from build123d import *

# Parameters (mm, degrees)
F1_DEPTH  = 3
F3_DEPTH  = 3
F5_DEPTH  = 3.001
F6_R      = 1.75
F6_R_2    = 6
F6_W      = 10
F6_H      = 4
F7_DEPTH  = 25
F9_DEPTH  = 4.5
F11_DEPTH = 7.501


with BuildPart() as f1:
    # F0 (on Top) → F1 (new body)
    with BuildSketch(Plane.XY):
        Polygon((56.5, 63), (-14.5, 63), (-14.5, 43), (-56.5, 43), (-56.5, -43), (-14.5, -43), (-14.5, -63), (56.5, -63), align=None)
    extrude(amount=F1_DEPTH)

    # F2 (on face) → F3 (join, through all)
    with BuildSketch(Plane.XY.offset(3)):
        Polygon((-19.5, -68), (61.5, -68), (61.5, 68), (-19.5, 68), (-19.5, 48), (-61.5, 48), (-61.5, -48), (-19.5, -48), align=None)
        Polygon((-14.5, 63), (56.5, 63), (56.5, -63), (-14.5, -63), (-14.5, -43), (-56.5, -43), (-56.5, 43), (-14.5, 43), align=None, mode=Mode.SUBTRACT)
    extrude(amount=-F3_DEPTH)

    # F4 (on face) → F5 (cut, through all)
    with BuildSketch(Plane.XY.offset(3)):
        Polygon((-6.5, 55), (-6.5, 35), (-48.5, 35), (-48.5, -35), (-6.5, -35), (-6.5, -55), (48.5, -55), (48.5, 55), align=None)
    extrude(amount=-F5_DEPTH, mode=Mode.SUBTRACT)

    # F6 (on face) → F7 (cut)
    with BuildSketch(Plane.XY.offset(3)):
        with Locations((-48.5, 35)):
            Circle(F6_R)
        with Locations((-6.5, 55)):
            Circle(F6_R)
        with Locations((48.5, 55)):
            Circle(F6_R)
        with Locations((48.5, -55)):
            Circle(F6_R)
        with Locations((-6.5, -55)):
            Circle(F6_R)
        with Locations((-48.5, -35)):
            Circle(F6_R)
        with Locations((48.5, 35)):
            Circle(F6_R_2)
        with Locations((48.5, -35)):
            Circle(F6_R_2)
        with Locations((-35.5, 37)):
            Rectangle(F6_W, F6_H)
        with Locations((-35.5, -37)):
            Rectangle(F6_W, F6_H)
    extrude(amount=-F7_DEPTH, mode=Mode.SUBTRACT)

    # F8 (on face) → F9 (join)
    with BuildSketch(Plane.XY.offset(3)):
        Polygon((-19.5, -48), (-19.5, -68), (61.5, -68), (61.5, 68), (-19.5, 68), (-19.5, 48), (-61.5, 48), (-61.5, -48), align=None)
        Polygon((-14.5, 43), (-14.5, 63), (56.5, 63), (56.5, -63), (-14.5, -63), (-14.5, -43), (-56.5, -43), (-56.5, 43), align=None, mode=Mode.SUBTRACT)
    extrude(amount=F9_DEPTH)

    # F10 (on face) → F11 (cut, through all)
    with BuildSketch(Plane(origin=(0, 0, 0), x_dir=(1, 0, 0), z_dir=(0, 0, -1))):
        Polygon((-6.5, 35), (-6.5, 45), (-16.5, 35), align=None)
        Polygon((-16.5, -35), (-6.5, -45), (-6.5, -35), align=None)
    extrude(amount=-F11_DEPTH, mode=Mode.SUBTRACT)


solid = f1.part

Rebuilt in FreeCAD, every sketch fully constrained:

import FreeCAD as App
import Part
import Sketcher
from FreeCAD import Vector
Q = App.Units.Quantity

doc = App.newDocument("Part")
params = doc.addObject("Spreadsheet::Sheet", "Params")
for row, (alias, value) in enumerate([
    ("sketch1_width", "71 mm"),
    ("sketch1_width2", "42 mm"),
    ("sketch1_height", "20 mm"),
    ("sketch1_height2", "86 mm"),
    ("pad1_length", "3 mm"),
    ("sketch2_width", "81 mm"),
    ("sketch2_width2", "42 mm"),
    ("sketch2_width3", "71 mm"),
    ("sketch2_height", "136 mm"),
    ("sketch2_height2", "20 mm"),
    ("sketch3_width", "42 mm"),
    ("sketch3_width2", "55 mm"),
    ("sketch3_height", "20 mm"),
    ("sketch3_height2", "70 mm"),
    ("sketch4_diameter", "12 mm"),
    ("sketch4_diameter2", "3.5 mm"),
    ("sketch4_width", "10 mm"),
    ("sketch4_height", "4 mm"),
    ("pocket2_length", "25 mm"),
    ("sketch5_width", "81 mm"),
    ("sketch5_width2", "42 mm"),
    ("sketch5_width3", "71 mm"),
    ("sketch5_height", "20 mm"),
    ("sketch5_height2", "136 mm"),
    ("pad3_length", "4.5 mm"),
    ("sketch6_width", "10 mm"),
], start=1):
    params.set(f"A{row}", alias)
    params.set(f"B{row}", "=" + value)
    params.setAlias(f"B{row}", alias)

body = doc.addObject("PartDesign::Body", "Body")

sketch1 = body.newObject("Sketcher::SketchObject", "Sketch")
sketch1.AttachmentSupport = (doc.getObject("XY_Plane"), [""])
sketch1.MapMode = "FlatFace"
sketch1.addGeometry([
    Part.LineSegment(Vector(56, 63, 0), Vector(-14, 63, 0)),
    Part.LineSegment(Vector(-14, 63, 0), Vector(-14, 43, 0)),
    Part.LineSegment(Vector(-14, 43, 0), Vector(-56, 43, 0)),
    Part.LineSegment(Vector(-56, 43, 0), Vector(-56, -43, 0)),
    Part.LineSegment(Vector(-56, -43, 0), Vector(-14, -43, 0)),
    Part.LineSegment(Vector(-14, -43, 0), Vector(-14, -63, 0)),
    Part.LineSegment(Vector(-14, -63, 0), Vector(56, -63, 0)),
    Part.LineSegment(Vector(56, -63, 0), Vector(56, 63, 0)),
], False)
sketch1.addConstraint([
    Sketcher.Constraint("Coincident", 0, 2, 1, 1),
    Sketcher.Constraint("Coincident", 1, 2, 2, 1),
    Sketcher.Constraint("Coincident", 2, 2, 3, 1),
    Sketcher.Constraint("Coincident", 3, 2, 4, 1),
    Sketcher.Constraint("Coincident", 4, 2, 5, 1),
    Sketcher.Constraint("Coincident", 5, 2, 6, 1),
    Sketcher.Constraint("Coincident", 6, 2, 7, 1),
    Sketcher.Constraint("Coincident", 7, 2, 0, 1),
    Sketcher.Constraint("Horizontal", 0),
    Sketcher.Constraint("Vertical", 1),
    Sketcher.Constraint("Horizontal", 2),
    Sketcher.Constraint("Vertical", 3),
    Sketcher.Constraint("Horizontal", 4),
    Sketcher.Constraint("Vertical", 5),
    Sketcher.Constraint("Horizontal", 6),
    Sketcher.Constraint("Vertical", 7),
    Sketcher.Constraint("Symmetric", 1, 2, 4, 2, -1),
    Sketcher.Constraint("Equal", 1, 5),
    Sketcher.Constraint("DistanceX", 0, 2, 0, 1, Q("71 mm")),
    Sketcher.Constraint("DistanceX", 2, 2, 2, 1, Q("42 mm")),
    Sketcher.Constraint("DistanceY", 1, 2, 1, 1, Q("20 mm")),
    Sketcher.Constraint("DistanceY", 3, 2, 3, 1, Q("86 mm")),
    Sketcher.Constraint("DistanceX", 0, 2, -1, 1, Q("14.5 mm")),
])
sketch1.setExpression("Constraints[18]", "Params.sketch1_width")
sketch1.setExpression("Constraints[19]", "Params.sketch1_width2")
sketch1.setExpression("Constraints[20]", "Params.sketch1_height")
sketch1.setExpression("Constraints[21]", "Params.sketch1_height2")
pad1 = body.newObject("PartDesign::Pad", "Pad")
pad1.Profile = sketch1
pad1.setExpression("Length", "Params.pad1_length")

sketch2 = body.newObject("Sketcher::SketchObject", "Sketch001")
sketch2.AttachmentSupport = (doc.getObject("XY_Plane"), [""])
sketch2.MapMode = "FlatFace"
sketch2.AttachmentOffset = App.Placement(Vector(0, 0, 3), App.Rotation())
sketch2.addGeometry([
    Part.LineSegment(Vector(-20, -68, 0), Vector(62, -68, 0)),
    Part.LineSegment(Vector(62, -68, 0), Vector(62, 68, 0)),
    Part.LineSegment(Vector(62, 68, 0), Vector(-20, 68, 0)),
    Part.LineSegment(Vector(-20, 68, 0), Vector(-20, 48, 0)),
    Part.LineSegment(Vector(-20, 48, 0), Vector(-62, 48, 0)),
    Part.LineSegment(Vector(-62, 48, 0), Vector(-62, -48, 0)),
    Part.LineSegment(Vector(-62, -48, 0), Vector(-20, -48, 0)),
    Part.LineSegment(Vector(-20, -48, 0), Vector(-20, -68, 0)),
    Part.LineSegment(Vector(-14, 43, 0), Vector(-14, 63, 0)),
    Part.LineSegment(Vector(-14, 63, 0), Vector(56, 63, 0)),
    Part.LineSegment(Vector(56, 63, 0), Vector(56, -63, 0)),
    Part.LineSegment(Vector(56, -63, 0), Vector(-14, -63, 0)),
    Part.LineSegment(Vector(-14, -63, 0), Vector(-14, -43, 0)),
    Part.LineSegment(Vector(-14, -43, 0), Vector(-56, -43, 0)),
    Part.LineSegment(Vector(-56, -43, 0), Vector(-56, 43, 0)),
    Part.LineSegment(Vector(-56, 43, 0), Vector(-14, 43, 0)),
], False)
sketch2.addConstraint([
    Sketcher.Constraint("Coincident", 0, 2, 1, 1),
    Sketcher.Constraint("Coincident", 1, 2, 2, 1),
    Sketcher.Constraint("Coincident", 2, 2, 3, 1),
    Sketcher.Constraint("Coincident", 3, 2, 4, 1),
    Sketcher.Constraint("Coincident", 4, 2, 5, 1),
    Sketcher.Constraint("Coincident", 5, 2, 6, 1),
    Sketcher.Constraint("Coincident", 6, 2, 7, 1),
    Sketcher.Constraint("Coincident", 7, 2, 0, 1),
    Sketcher.Constraint("Coincident", 8, 2, 9, 1),
    Sketcher.Constraint("Coincident", 9, 2, 10, 1),
    Sketcher.Constraint("Coincident", 10, 2, 11, 1),
    Sketcher.Constraint("Coincident", 11, 2, 12, 1),
    Sketcher.Constraint("Coincident", 12, 2, 13, 1),
    Sketcher.Constraint("Coincident", 13, 2, 14, 1),
    Sketcher.Constraint("Coincident", 14, 2, 15, 1),
    Sketcher.Constraint("Coincident", 15, 2, 8, 1),
    Sketcher.Constraint("Horizontal", 0),
    Sketcher.Constraint("Vertical", 1),
    Sketcher.Constraint("Horizontal", 2),
    Sketcher.Constraint("Vertical", 3),
    Sketcher.Constraint("Horizontal", 4),
    Sketcher.Constraint("Vertical", 5),
    Sketcher.Constraint("Horizontal", 6),
    Sketcher.Constraint("Vertical", 7),
    Sketcher.Constraint("Vertical", 8),
    Sketcher.Constraint("Horizontal", 9),
    Sketcher.Constraint("Vertical", 10),
    Sketcher.Constraint("Horizontal", 11),
    Sketcher.Constraint("Vertical", 12),
    Sketcher.Constraint("Horizontal", 13),
    Sketcher.Constraint("Vertical", 14),
    Sketcher.Constraint("Horizontal", 15),
    Sketcher.Constraint("Symmetric", 3, 2, 6, 2, -1),
    Sketcher.Constraint("Symmetric", 8, 2, 11, 2, -1),
    Sketcher.Constraint("Equal", 6, 13),
    Sketcher.Constraint("Equal", 3, 7),
    Sketcher.Constraint("Equal", 7, 8),
    Sketcher.Constraint("Equal", 8, 12),
    Sketcher.Constraint("DistanceX", 0, 1, 0, 2, Q("81 mm")),
    Sketcher.Constraint("DistanceX", 4, 2, 4, 1, Q("42 mm")),
    Sketcher.Constraint("DistanceX", 9, 1, 9, 2, Q("71 mm")),
    Sketcher.Constraint("DistanceY", 1, 1, 1, 2, Q("136 mm")),
    Sketcher.Constraint("DistanceY", 3, 2, 3, 1, Q("20 mm")),
    Sketcher.Constraint("DistanceY", 10, 2, 10, 1, Q("126 mm")),
    Sketcher.Constraint("DistanceX", 2, 2, 8, 2, Q("5 mm")),
    Sketcher.Constraint("DistanceX", -1, 1, 0, 2, Q("61.5 mm")),
])
sketch2.setExpression("Constraints[38]", "Params.sketch2_width")
sketch2.setExpression("Constraints[39]", "Params.sketch2_width2")
sketch2.setExpression("Constraints[40]", "Params.sketch2_width3")
sketch2.setExpression("Constraints[41]", "Params.sketch2_height")
sketch2.setExpression("Constraints[42]", "Params.sketch2_height2")
pad2 = body.newObject("PartDesign::Pad", "Pad001")
pad2.Profile = sketch2
pad2.Type = "UpToLast"
pad2.Reversed = True

sketch3 = body.newObject("Sketcher::SketchObject", "Sketch002")
sketch3.AttachmentSupport = (doc.getObject("XY_Plane"), [""])
sketch3.MapMode = "FlatFace"
sketch3.AttachmentOffset = App.Placement(Vector(0, 0, 3), App.Rotation())
sketch3.addGeometry([
    Part.LineSegment(Vector(-6, 55, 0), Vector(-6, 35, 0)),
    Part.LineSegment(Vector(-6, 35, 0), Vector(-48, 35, 0)),
    Part.LineSegment(Vector(-48, 35, 0), Vector(-48, -35, 0)),
    Part.LineSegment(Vector(-48, -35, 0), Vector(-6, -35, 0)),
    Part.LineSegment(Vector(-6, -35, 0), Vector(-6, -55, 0)),
    Part.LineSegment(Vector(-6, -55, 0), Vector(48, -55, 0)),
    Part.LineSegment(Vector(48, -55, 0), Vector(48, 55, 0)),
    Part.LineSegment(Vector(48, 55, 0), Vector(-6, 55, 0)),
], False)
sketch3.addConstraint([
    Sketcher.Constraint("Coincident", 0, 2, 1, 1),
    Sketcher.Constraint("Coincident", 1, 2, 2, 1),
    Sketcher.Constraint("Coincident", 2, 2, 3, 1),
    Sketcher.Constraint("Coincident", 3, 2, 4, 1),
    Sketcher.Constraint("Coincident", 4, 2, 5, 1),
    Sketcher.Constraint("Coincident", 5, 2, 6, 1),
    Sketcher.Constraint("Coincident", 6, 2, 7, 1),
    Sketcher.Constraint("Coincident", 7, 2, 0, 1),
    Sketcher.Constraint("Vertical", 0),
    Sketcher.Constraint("Horizontal", 1),
    Sketcher.Constraint("Vertical", 2),
    Sketcher.Constraint("Horizontal", 3),
    Sketcher.Constraint("Vertical", 4),
    Sketcher.Constraint("Horizontal", 5),
    Sketcher.Constraint("Vertical", 6),
    Sketcher.Constraint("Horizontal", 7),
    Sketcher.Constraint("Symmetric", 0, 2, 3, 2, -1),
    Sketcher.Constraint("Equal", 0, 4),
    Sketcher.Constraint("DistanceX", 1, 2, 1, 1, Q("42 mm")),
    Sketcher.Constraint("DistanceX", 5, 1, 5, 2, Q("55 mm")),
    Sketcher.Constraint("DistanceY", 0, 2, 0, 1, Q("20 mm")),
    Sketcher.Constraint("DistanceY", 2, 2, 2, 1, Q("70 mm")),
    Sketcher.Constraint("DistanceX", 0, 2, -1, 1, Q("6.5 mm")),
])
sketch3.setExpression("Constraints[18]", "Params.sketch3_width")
sketch3.setExpression("Constraints[19]", "Params.sketch3_width2")
sketch3.setExpression("Constraints[20]", "Params.sketch3_height")
sketch3.setExpression("Constraints[21]", "Params.sketch3_height2")
pocket1 = body.newObject("PartDesign::Pocket", "Pocket")
pocket1.Profile = sketch3
pocket1.Type = "ThroughAll"

sketch4 = body.newObject("Sketcher::SketchObject", "Sketch003")
sketch4.AttachmentSupport = (doc.getObject("XY_Plane"), [""])
sketch4.MapMode = "FlatFace"
sketch4.AttachmentOffset = App.Placement(Vector(0, 0, 3), App.Rotation())
sketch4.addGeometry([
    Part.Circle(Vector(-48.5, 35, 0), Vector(0, 0, 1), 1.8),
    Part.Circle(Vector(-6.5, 55, 0), Vector(0, 0, 1), 1.8),
    Part.Circle(Vector(48.5, 55, 0), Vector(0, 0, 1), 1.8),
    Part.Circle(Vector(48.5, -55, 0), Vector(0, 0, 1), 1.8),
    Part.Circle(Vector(-6.5, -55, 0), Vector(0, 0, 1), 1.8),
    Part.Circle(Vector(-48.5, -35, 0), Vector(0, 0, 1), 1.8),
    Part.Circle(Vector(48.5, 35, 0), Vector(0, 0, 1), 6),
    Part.Circle(Vector(48.5, -35, 0), Vector(0, 0, 1), 6),
    Part.LineSegment(Vector(-40.5, 39, 0), Vector(-40.5, 35, 0)),
    Part.LineSegment(Vector(-40.5, 35, 0), Vector(-30.5, 35, 0)),
    Part.LineSegment(Vector(-30.5, 35, 0), Vector(-30.5, 39, 0)),
    Part.LineSegment(Vector(-30.5, 39, 0), Vector(-40.5, 39, 0)),
    Part.LineSegment(Vector(-40.5, -35, 0), Vector(-40.5, -39, 0)),
    Part.LineSegment(Vector(-40.5, -39, 0), Vector(-30.5, -39, 0)),
    Part.LineSegment(Vector(-30.5, -39, 0), Vector(-30.5, -35, 0)),
    Part.LineSegment(Vector(-30.5, -35, 0), Vector(-40.5, -35, 0)),
], False)
sketch4.addConstraint([
    Sketcher.Constraint("Coincident", 8, 2, 9, 1),
    Sketcher.Constraint("Coincident", 9, 2, 10, 1),
    Sketcher.Constraint("Coincident", 10, 2, 11, 1),
    Sketcher.Constraint("Coincident", 11, 2, 8, 1),
    Sketcher.Constraint("Coincident", 12, 2, 13, 1),
    Sketcher.Constraint("Coincident", 13, 2, 14, 1),
    Sketcher.Constraint("Coincident", 14, 2, 15, 1),
    Sketcher.Constraint("Coincident", 15, 2, 12, 1),
    Sketcher.Constraint("Vertical", 8),
    Sketcher.Constraint("Horizontal", 9),
    Sketcher.Constraint("Vertical", 10),
    Sketcher.Constraint("Horizontal", 11),
    Sketcher.Constraint("Vertical", 12),
    Sketcher.Constraint("Horizontal", 13),
    Sketcher.Constraint("Vertical", 14),
    Sketcher.Constraint("Horizontal", 15),
    Sketcher.Constraint("Equal", 0, 1),
    Sketcher.Constraint("Equal", 1, 2),
    Sketcher.Constraint("Equal", 2, 3),
    Sketcher.Constraint("Equal", 3, 4),
    Sketcher.Constraint("Equal", 4, 5),
    Sketcher.Constraint("Equal", 6, 7),
    Sketcher.Constraint("Symmetric", 5, 3, 6, 3, -1, 1),
    Sketcher.Constraint("Symmetric", 0, 3, 7, 3, -1, 1),
    Sketcher.Constraint("Symmetric", 0, 3, 6, 3, -2),
    Sketcher.Constraint("Symmetric", 2, 3, 3, 3, -1),
    Sketcher.Constraint("Symmetric", 1, 3, 4, 3, -1),
    Sketcher.Constraint("Symmetric", 11, 2, 12, 2, -1),
    Sketcher.Constraint("Symmetric", 9, 2, 14, 2, -1),
    Sketcher.Constraint("Horizontal", 1, 3, 2, 3),
    Sketcher.Constraint("Horizontal", 6, 3, 8, 2),
    Sketcher.Constraint("Vertical", 3, 3, 6, 3),
    Sketcher.Constraint("Diameter", 6, Q("12 mm")),
    Sketcher.Constraint("Diameter", 0, Q("3.5 mm")),
    Sketcher.Constraint("DistanceX", 9, 1, 9, 2, Q("10 mm")),
    Sketcher.Constraint("DistanceY", 8, 2, 8, 1, Q("4 mm")),
    Sketcher.Constraint("DistanceY", -1, 1, 0, 3, Q("35 mm")),
    Sketcher.Constraint("DistanceY", -1, 1, 1, 3, Q("55 mm")),
    Sketcher.Constraint("DistanceX", 0, 3, 1, 3, Q("42 mm")),
    Sketcher.Constraint("DistanceX", 1, 3, 2, 3, Q("55 mm")),
    Sketcher.Constraint("DistanceX", 0, 3, 8, 2, Q("8 mm")),
])
sketch4.setExpression("Constraints[32]", "Params.sketch4_diameter")
sketch4.setExpression("Constraints[33]", "Params.sketch4_diameter2")
sketch4.setExpression("Constraints[34]", "Params.sketch4_width")
sketch4.setExpression("Constraints[35]", "Params.sketch4_height")
pocket2 = body.newObject("PartDesign::Pocket", "Pocket001")
pocket2.Profile = sketch4
pocket2.setExpression("Length", "Params.pocket2_length")

sketch5 = body.newObject("Sketcher::SketchObject", "Sketch004")
sketch5.AttachmentSupport = (doc.getObject("XY_Plane"), [""])
sketch5.MapMode = "FlatFace"
sketch5.AttachmentOffset = App.Placement(Vector(0, 0, 3), App.Rotation())
sketch5.addGeometry([
    Part.LineSegment(Vector(-20, -48, 0), Vector(-20, -68, 0)),
    Part.LineSegment(Vector(-20, -68, 0), Vector(62, -68, 0)),
    Part.LineSegment(Vector(62, -68, 0), Vector(62, 68, 0)),
    Part.LineSegment(Vector(62, 68, 0), Vector(-20, 68, 0)),
    Part.LineSegment(Vector(-20, 68, 0), Vector(-20, 48, 0)),
    Part.LineSegment(Vector(-20, 48, 0), Vector(-62, 48, 0)),
    Part.LineSegment(Vector(-62, 48, 0), Vector(-62, -48, 0)),
    Part.LineSegment(Vector(-62, -48, 0), Vector(-20, -48, 0)),
    Part.LineSegment(Vector(-56, 43, 0), Vector(-14, 43, 0)),
    Part.LineSegment(Vector(-14, 43, 0), Vector(-14, 63, 0)),
    Part.LineSegment(Vector(-14, 63, 0), Vector(56, 63, 0)),
    Part.LineSegment(Vector(56, 63, 0), Vector(56, -63, 0)),
    Part.LineSegment(Vector(56, -63, 0), Vector(-14, -63, 0)),
    Part.LineSegment(Vector(-14, -63, 0), Vector(-14, -43, 0)),
    Part.LineSegment(Vector(-14, -43, 0), Vector(-56, -43, 0)),
    Part.LineSegment(Vector(-56, -43, 0), Vector(-56, 43, 0)),
], False)
sketch5.addConstraint([
    Sketcher.Constraint("Coincident", 0, 2, 1, 1),
    Sketcher.Constraint("Coincident", 1, 2, 2, 1),
    Sketcher.Constraint("Coincident", 2, 2, 3, 1),
    Sketcher.Constraint("Coincident", 3, 2, 4, 1),
    Sketcher.Constraint("Coincident", 4, 2, 5, 1),
    Sketcher.Constraint("Coincident", 5, 2, 6, 1),
    Sketcher.Constraint("Coincident", 6, 2, 7, 1),
    Sketcher.Constraint("Coincident", 7, 2, 0, 1),
    Sketcher.Constraint("Coincident", 8, 2, 9, 1),
    Sketcher.Constraint("Coincident", 9, 2, 10, 1),
    Sketcher.Constraint("Coincident", 10, 2, 11, 1),
    Sketcher.Constraint("Coincident", 11, 2, 12, 1),
    Sketcher.Constraint("Coincident", 12, 2, 13, 1),
    Sketcher.Constraint("Coincident", 13, 2, 14, 1),
    Sketcher.Constraint("Coincident", 14, 2, 15, 1),
    Sketcher.Constraint("Coincident", 15, 2, 8, 1),
    Sketcher.Constraint("Vertical", 0),
    Sketcher.Constraint("Horizontal", 1),
    Sketcher.Constraint("Vertical", 2),
    Sketcher.Constraint("Horizontal", 3),
    Sketcher.Constraint("Vertical", 4),
    Sketcher.Constraint("Horizontal", 5),
    Sketcher.Constraint("Vertical", 6),
    Sketcher.Constraint("Horizontal", 7),
    Sketcher.Constraint("Horizontal", 8),
    Sketcher.Constraint("Vertical", 9),
    Sketcher.Constraint("Horizontal", 10),
    Sketcher.Constraint("Vertical", 11),
    Sketcher.Constraint("Horizontal", 12),
    Sketcher.Constraint("Vertical", 13),
    Sketcher.Constraint("Horizontal", 14),
    Sketcher.Constraint("Vertical", 15),
    Sketcher.Constraint("Symmetric", 0, 2, 3, 2, -1),
    Sketcher.Constraint("Symmetric", 9, 2, 12, 2, -1),
    Sketcher.Constraint("Equal", 7, 8),
    Sketcher.Constraint("Equal", 0, 4),
    Sketcher.Constraint("Equal", 4, 9),
    Sketcher.Constraint("Equal", 9, 13),
    Sketcher.Constraint("DistanceX", 1, 1, 1, 2, Q("81 mm")),
    Sketcher.Constraint("DistanceX", 5, 2, 5, 1, Q("42 mm")),
    Sketcher.Constraint("DistanceX", 10, 1, 10, 2, Q("71 mm")),
    Sketcher.Constraint("DistanceY", 0, 2, 0, 1, Q("20 mm")),
    Sketcher.Constraint("DistanceY", 2, 1, 2, 2, Q("136 mm")),
    Sketcher.Constraint("DistanceY", 11, 2, 11, 1, Q("126 mm")),
    Sketcher.Constraint("DistanceX", 4, 2, 8, 2, Q("5 mm")),
    Sketcher.Constraint("DistanceX", 0, 2, -1, 1, Q("19.5 mm")),
])
sketch5.setExpression("Constraints[38]", "Params.sketch5_width")
sketch5.setExpression("Constraints[39]", "Params.sketch5_width2")
sketch5.setExpression("Constraints[40]", "Params.sketch5_width3")
sketch5.setExpression("Constraints[41]", "Params.sketch5_height")
sketch5.setExpression("Constraints[42]", "Params.sketch5_height2")
pad3 = body.newObject("PartDesign::Pad", "Pad002")
pad3.Profile = sketch5
pad3.setExpression("Length", "Params.pad3_length")

sketch6 = body.newObject("Sketcher::SketchObject", "Sketch005")
sketch6.AttachmentSupport = (doc.getObject("XY_Plane"), [""])
sketch6.MapMode = "FlatFace"
sketch6.addGeometry([
    Part.LineSegment(Vector(-6, -35, 0), Vector(-6, -45, 0)),
    Part.LineSegment(Vector(-6, -45, 0), Vector(-16, -35, 0)),
    Part.LineSegment(Vector(-16, -35, 0), Vector(-6, -35, 0)),
    Part.LineSegment(Vector(-16, 35, 0), Vector(-6, 45, 0)),
    Part.LineSegment(Vector(-6, 45, 0), Vector(-6, 35, 0)),
    Part.LineSegment(Vector(-6, 35, 0), Vector(-16, 35, 0)),
], False)
sketch6.addConstraint([
    Sketcher.Constraint("Coincident", 0, 2, 1, 1),
    Sketcher.Constraint("Coincident", 1, 2, 2, 1),
    Sketcher.Constraint("Coincident", 2, 2, 0, 1),
    Sketcher.Constraint("Coincident", 3, 2, 4, 1),
    Sketcher.Constraint("Coincident", 4, 2, 5, 1),
    Sketcher.Constraint("Coincident", 5, 2, 3, 1),
    Sketcher.Constraint("Vertical", 0),
    Sketcher.Constraint("Horizontal", 2),
    Sketcher.Constraint("Vertical", 4),
    Sketcher.Constraint("Horizontal", 5),
    Sketcher.Constraint("Symmetric", 0, 2, 3, 2, -1),
    Sketcher.Constraint("Symmetric", 1, 2, 5, 2, -1),
    Sketcher.Constraint("Perpendicular", 1, 3),
    Sketcher.Constraint("DistanceX", 2, 1, 2, 2, Q("10 mm")),
    Sketcher.Constraint("DistanceY", 0, 2, -1, 1, Q("45 mm")),
    Sketcher.Constraint("DistanceX", 0, 2, -1, 1, Q("6.5 mm")),
])
sketch6.setExpression("Constraints[13]", "Params.sketch6_width")
pocket3 = body.newObject("PartDesign::Pocket", "Pocket002")
pocket3.Profile = sketch6
pocket3.Type = "ThroughAll"
pocket3.Reversed = True

doc.recompute()
